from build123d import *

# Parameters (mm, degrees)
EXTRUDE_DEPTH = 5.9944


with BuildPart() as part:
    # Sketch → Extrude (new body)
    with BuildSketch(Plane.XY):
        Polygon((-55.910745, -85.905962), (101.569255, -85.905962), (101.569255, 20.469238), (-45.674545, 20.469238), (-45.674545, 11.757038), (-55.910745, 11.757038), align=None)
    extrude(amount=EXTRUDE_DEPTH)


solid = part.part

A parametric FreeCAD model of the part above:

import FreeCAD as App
import Part
import Sketcher
from FreeCAD import Vector
Q = App.Units.Quantity

doc = App.newDocument("Part")
params = doc.addObject("Spreadsheet::Sheet", "Params")
for row, (alias, value) in enumerate([
    ("sketch1_width", "6.2 in"),
    ("sketch1_width2", "5.797 in"),
    ("sketch1_height", "4.188 in"),
    ("sketch1_height2", "0.343 in"),
    ("pad1_length", "0.236 in"),
], start=1):
    params.set(f"A{row}", alias)
    params.set(f"B{row}", "=" + value)
    params.setAlias(f"B{row}", alias)

body = doc.addObject("PartDesign::Body", "Body")

sketch1 = body.newObject("Sketcher::SketchObject", "Sketch")
sketch1.AttachmentSupport = (doc.getObject("XY_Plane"), [""])
sketch1.MapMode = "FlatFace"
sketch1.addGeometry(Part.LineSegment(Vector(-55.910745, -85.905962, 0), Vector(101.569255, -85.905962, 0)), False)
sketch1.addGeometry(Part.LineSegment(Vector(101.569255, -85.905962, 0), Vector(101.569255, 20.469238, 0)), False)
sketch1.addGeometry(Part.LineSegment(Vector(101.569255, 20.469238, 0), Vector(-45.674545, 20.469238, 0)), False)
sketch1.addGeometry(Part.LineSegment(Vector(-45.674545, 20.469238, 0), Vector(-45.674545, 11.757038, 0)), False)
sketch1.addGeometry(Part.LineSegment(Vector(-45.674545, 11.757038, 0), Vector(-55.910745, 11.757038, 0)), False)
sketch1.addGeometry(Part.LineSegment(Vector(-55.910745, 11.757038, 0), Vector(-55.910745, -85.905962, 0)), False)
sketch1.addConstraint(Sketcher.Constraint("Coincident", 0, 2, 1, 1))
sketch1.addConstraint(Sketcher.Constraint("Coincident", 1, 2, 2, 1))
sketch1.addConstraint(Sketcher.Constraint("Coincident", 2, 2, 3, 1))
sketch1.addConstraint(Sketcher.Constraint("Coincident", 3, 2, 4, 1))
sketch1.addConstraint(Sketcher.Constraint("Coincident", 4, 2, 5, 1))
sketch1.addConstraint(Sketcher.Constraint("Coincident", 5, 2, 0, 1))
sketch1.addConstraint(Sketcher.Constraint("Horizontal", 0))
sketch1.addConstraint(Sketcher.Constraint("Vertical", 1))
sketch1.addConstraint(Sketcher.Constraint("Horizontal", 2))
sketch1.addConstraint(Sketcher.Constraint("Vertical", 3))
sketch1.addConstraint(Sketcher.Constraint("Horizontal", 4))
sketch1.addConstraint(Sketcher.Constraint("Vertical", 5))
sketch1.addConstraint(Sketcher.Constraint("DistanceX", 0, 1, 0, 2, Q("6.2 in")))
sketch1.addConstraint(Sketcher.Constraint("DistanceX", 2, 2, 2, 1, Q("5.797 in")))
sketch1.addConstraint(Sketcher.Constraint("DistanceY", 1, 1, 1, 2, Q("4.188 in")))
sketch1.addConstraint(Sketcher.Constraint("DistanceY", 3, 2, 3, 1, Q("0.343 in")))
sketch1.addConstraint(Sketcher.Constraint("DistanceY", -1, 1, 1, 2, Q("20.469238 mm")))
sketch1.addConstraint(Sketcher.Constraint("DistanceX", -1, 1, 0, 2, Q("101.569255 mm")))
sketch1.setExpression("Constraints[12]", "Params.sketch1_width")
sketch1.setExpression("Constraints[13]", "Params.sketch1_width2")
sketch1.setExpression("Constraints[14]", "Params.sketch1_height")
sketch1.setExpression("Constraints[15]", "Params.sketch1_height2")
pad1 = body.newObject("PartDesign::Pad", "Pad")
pad1.Profile = sketch1
pad1.setExpression("Length", "Params.pad1_length")

doc.recompute()
